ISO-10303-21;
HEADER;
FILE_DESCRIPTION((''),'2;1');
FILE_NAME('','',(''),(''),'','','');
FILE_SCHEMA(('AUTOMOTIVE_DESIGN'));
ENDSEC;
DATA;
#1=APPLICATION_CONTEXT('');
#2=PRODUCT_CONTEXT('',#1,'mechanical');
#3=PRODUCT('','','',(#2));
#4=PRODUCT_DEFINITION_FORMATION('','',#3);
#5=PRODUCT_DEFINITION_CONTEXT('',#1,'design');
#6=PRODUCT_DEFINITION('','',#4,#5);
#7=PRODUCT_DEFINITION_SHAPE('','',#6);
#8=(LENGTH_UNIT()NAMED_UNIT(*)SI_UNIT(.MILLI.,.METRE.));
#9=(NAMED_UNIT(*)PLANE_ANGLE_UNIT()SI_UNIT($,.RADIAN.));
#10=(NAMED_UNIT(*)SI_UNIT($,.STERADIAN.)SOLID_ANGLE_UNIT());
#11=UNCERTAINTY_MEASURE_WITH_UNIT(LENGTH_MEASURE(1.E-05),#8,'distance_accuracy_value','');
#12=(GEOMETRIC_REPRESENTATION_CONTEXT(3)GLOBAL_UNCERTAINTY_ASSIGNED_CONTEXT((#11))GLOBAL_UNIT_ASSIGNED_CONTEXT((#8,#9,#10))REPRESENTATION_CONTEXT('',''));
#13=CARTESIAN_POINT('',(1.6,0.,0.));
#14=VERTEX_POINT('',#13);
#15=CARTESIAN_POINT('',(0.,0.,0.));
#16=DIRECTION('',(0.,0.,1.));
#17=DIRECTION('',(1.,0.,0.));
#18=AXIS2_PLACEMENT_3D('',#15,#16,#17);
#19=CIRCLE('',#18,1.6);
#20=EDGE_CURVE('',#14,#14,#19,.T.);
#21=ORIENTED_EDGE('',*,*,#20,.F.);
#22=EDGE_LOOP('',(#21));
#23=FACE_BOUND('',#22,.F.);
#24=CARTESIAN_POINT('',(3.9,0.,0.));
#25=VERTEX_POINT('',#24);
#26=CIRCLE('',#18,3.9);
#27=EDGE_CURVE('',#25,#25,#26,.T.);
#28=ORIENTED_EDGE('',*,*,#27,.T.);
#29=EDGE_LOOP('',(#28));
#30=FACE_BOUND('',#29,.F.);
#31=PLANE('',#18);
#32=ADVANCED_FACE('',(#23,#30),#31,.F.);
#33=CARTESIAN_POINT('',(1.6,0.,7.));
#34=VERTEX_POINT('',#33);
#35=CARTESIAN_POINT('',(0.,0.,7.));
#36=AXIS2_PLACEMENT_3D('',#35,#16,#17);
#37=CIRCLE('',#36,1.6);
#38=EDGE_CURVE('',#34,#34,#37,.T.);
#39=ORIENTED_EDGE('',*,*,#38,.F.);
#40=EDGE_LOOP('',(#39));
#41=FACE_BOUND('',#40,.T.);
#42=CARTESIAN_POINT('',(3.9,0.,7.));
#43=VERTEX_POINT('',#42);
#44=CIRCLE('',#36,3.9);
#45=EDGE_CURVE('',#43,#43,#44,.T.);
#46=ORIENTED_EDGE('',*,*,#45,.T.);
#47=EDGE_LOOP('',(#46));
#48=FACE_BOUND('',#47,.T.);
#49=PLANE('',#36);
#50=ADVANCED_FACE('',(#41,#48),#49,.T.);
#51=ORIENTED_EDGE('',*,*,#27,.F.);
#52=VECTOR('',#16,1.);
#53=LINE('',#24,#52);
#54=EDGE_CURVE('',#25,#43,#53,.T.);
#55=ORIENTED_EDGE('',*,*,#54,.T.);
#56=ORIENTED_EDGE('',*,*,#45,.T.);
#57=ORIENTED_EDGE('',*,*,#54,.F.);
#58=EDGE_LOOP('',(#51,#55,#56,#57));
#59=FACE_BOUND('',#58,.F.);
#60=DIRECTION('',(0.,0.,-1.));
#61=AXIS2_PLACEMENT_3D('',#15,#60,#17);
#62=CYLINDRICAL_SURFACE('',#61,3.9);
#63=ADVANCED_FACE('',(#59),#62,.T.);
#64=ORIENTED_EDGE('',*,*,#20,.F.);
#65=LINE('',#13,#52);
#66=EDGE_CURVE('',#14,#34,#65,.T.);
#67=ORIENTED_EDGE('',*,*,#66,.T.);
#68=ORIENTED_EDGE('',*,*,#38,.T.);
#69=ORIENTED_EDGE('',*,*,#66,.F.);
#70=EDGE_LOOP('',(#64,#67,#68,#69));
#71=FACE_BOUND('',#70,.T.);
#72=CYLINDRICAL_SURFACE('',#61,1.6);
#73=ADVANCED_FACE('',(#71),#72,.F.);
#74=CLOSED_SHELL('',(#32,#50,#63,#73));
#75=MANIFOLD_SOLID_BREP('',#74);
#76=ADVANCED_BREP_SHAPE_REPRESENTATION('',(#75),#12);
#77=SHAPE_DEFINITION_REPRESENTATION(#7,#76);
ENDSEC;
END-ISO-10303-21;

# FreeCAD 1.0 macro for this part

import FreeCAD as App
import Part
import Sketcher
from FreeCAD import Vector

doc = App.newDocument("Part")
body = doc.addObject("PartDesign::Body", "Body")

sketch1 = body.newObject("Sketcher::SketchObject", "Sketch")
sketch1.AttachmentSupport = (doc.getObject("XY_Plane"), [""])
sketch1.MapMode = "FlatFace"
sketch1.addGeometry([
    Part.Circle(Vector(0, 0, 0), Vector(0, 0, 1), 3.9),
    Part.Circle(Vector(0, 0, 0), Vector(0, 0, 1), 1.6),
], False)
sketch1.addConstraint([
    Sketcher.Constraint("Coincident", 0, 3, -1, 1),
    Sketcher.Constraint("Coincident", 1, 3, -1, 1),
    Sketcher.Constraint("Diameter", 0, 7.8),
    Sketcher.Constraint("Diameter", 1, 3.2),
])
pad1 = body.newObject("PartDesign::Pad", "Pad")
pad1.Profile = sketch1
pad1.Length = 7

doc.recompute()
